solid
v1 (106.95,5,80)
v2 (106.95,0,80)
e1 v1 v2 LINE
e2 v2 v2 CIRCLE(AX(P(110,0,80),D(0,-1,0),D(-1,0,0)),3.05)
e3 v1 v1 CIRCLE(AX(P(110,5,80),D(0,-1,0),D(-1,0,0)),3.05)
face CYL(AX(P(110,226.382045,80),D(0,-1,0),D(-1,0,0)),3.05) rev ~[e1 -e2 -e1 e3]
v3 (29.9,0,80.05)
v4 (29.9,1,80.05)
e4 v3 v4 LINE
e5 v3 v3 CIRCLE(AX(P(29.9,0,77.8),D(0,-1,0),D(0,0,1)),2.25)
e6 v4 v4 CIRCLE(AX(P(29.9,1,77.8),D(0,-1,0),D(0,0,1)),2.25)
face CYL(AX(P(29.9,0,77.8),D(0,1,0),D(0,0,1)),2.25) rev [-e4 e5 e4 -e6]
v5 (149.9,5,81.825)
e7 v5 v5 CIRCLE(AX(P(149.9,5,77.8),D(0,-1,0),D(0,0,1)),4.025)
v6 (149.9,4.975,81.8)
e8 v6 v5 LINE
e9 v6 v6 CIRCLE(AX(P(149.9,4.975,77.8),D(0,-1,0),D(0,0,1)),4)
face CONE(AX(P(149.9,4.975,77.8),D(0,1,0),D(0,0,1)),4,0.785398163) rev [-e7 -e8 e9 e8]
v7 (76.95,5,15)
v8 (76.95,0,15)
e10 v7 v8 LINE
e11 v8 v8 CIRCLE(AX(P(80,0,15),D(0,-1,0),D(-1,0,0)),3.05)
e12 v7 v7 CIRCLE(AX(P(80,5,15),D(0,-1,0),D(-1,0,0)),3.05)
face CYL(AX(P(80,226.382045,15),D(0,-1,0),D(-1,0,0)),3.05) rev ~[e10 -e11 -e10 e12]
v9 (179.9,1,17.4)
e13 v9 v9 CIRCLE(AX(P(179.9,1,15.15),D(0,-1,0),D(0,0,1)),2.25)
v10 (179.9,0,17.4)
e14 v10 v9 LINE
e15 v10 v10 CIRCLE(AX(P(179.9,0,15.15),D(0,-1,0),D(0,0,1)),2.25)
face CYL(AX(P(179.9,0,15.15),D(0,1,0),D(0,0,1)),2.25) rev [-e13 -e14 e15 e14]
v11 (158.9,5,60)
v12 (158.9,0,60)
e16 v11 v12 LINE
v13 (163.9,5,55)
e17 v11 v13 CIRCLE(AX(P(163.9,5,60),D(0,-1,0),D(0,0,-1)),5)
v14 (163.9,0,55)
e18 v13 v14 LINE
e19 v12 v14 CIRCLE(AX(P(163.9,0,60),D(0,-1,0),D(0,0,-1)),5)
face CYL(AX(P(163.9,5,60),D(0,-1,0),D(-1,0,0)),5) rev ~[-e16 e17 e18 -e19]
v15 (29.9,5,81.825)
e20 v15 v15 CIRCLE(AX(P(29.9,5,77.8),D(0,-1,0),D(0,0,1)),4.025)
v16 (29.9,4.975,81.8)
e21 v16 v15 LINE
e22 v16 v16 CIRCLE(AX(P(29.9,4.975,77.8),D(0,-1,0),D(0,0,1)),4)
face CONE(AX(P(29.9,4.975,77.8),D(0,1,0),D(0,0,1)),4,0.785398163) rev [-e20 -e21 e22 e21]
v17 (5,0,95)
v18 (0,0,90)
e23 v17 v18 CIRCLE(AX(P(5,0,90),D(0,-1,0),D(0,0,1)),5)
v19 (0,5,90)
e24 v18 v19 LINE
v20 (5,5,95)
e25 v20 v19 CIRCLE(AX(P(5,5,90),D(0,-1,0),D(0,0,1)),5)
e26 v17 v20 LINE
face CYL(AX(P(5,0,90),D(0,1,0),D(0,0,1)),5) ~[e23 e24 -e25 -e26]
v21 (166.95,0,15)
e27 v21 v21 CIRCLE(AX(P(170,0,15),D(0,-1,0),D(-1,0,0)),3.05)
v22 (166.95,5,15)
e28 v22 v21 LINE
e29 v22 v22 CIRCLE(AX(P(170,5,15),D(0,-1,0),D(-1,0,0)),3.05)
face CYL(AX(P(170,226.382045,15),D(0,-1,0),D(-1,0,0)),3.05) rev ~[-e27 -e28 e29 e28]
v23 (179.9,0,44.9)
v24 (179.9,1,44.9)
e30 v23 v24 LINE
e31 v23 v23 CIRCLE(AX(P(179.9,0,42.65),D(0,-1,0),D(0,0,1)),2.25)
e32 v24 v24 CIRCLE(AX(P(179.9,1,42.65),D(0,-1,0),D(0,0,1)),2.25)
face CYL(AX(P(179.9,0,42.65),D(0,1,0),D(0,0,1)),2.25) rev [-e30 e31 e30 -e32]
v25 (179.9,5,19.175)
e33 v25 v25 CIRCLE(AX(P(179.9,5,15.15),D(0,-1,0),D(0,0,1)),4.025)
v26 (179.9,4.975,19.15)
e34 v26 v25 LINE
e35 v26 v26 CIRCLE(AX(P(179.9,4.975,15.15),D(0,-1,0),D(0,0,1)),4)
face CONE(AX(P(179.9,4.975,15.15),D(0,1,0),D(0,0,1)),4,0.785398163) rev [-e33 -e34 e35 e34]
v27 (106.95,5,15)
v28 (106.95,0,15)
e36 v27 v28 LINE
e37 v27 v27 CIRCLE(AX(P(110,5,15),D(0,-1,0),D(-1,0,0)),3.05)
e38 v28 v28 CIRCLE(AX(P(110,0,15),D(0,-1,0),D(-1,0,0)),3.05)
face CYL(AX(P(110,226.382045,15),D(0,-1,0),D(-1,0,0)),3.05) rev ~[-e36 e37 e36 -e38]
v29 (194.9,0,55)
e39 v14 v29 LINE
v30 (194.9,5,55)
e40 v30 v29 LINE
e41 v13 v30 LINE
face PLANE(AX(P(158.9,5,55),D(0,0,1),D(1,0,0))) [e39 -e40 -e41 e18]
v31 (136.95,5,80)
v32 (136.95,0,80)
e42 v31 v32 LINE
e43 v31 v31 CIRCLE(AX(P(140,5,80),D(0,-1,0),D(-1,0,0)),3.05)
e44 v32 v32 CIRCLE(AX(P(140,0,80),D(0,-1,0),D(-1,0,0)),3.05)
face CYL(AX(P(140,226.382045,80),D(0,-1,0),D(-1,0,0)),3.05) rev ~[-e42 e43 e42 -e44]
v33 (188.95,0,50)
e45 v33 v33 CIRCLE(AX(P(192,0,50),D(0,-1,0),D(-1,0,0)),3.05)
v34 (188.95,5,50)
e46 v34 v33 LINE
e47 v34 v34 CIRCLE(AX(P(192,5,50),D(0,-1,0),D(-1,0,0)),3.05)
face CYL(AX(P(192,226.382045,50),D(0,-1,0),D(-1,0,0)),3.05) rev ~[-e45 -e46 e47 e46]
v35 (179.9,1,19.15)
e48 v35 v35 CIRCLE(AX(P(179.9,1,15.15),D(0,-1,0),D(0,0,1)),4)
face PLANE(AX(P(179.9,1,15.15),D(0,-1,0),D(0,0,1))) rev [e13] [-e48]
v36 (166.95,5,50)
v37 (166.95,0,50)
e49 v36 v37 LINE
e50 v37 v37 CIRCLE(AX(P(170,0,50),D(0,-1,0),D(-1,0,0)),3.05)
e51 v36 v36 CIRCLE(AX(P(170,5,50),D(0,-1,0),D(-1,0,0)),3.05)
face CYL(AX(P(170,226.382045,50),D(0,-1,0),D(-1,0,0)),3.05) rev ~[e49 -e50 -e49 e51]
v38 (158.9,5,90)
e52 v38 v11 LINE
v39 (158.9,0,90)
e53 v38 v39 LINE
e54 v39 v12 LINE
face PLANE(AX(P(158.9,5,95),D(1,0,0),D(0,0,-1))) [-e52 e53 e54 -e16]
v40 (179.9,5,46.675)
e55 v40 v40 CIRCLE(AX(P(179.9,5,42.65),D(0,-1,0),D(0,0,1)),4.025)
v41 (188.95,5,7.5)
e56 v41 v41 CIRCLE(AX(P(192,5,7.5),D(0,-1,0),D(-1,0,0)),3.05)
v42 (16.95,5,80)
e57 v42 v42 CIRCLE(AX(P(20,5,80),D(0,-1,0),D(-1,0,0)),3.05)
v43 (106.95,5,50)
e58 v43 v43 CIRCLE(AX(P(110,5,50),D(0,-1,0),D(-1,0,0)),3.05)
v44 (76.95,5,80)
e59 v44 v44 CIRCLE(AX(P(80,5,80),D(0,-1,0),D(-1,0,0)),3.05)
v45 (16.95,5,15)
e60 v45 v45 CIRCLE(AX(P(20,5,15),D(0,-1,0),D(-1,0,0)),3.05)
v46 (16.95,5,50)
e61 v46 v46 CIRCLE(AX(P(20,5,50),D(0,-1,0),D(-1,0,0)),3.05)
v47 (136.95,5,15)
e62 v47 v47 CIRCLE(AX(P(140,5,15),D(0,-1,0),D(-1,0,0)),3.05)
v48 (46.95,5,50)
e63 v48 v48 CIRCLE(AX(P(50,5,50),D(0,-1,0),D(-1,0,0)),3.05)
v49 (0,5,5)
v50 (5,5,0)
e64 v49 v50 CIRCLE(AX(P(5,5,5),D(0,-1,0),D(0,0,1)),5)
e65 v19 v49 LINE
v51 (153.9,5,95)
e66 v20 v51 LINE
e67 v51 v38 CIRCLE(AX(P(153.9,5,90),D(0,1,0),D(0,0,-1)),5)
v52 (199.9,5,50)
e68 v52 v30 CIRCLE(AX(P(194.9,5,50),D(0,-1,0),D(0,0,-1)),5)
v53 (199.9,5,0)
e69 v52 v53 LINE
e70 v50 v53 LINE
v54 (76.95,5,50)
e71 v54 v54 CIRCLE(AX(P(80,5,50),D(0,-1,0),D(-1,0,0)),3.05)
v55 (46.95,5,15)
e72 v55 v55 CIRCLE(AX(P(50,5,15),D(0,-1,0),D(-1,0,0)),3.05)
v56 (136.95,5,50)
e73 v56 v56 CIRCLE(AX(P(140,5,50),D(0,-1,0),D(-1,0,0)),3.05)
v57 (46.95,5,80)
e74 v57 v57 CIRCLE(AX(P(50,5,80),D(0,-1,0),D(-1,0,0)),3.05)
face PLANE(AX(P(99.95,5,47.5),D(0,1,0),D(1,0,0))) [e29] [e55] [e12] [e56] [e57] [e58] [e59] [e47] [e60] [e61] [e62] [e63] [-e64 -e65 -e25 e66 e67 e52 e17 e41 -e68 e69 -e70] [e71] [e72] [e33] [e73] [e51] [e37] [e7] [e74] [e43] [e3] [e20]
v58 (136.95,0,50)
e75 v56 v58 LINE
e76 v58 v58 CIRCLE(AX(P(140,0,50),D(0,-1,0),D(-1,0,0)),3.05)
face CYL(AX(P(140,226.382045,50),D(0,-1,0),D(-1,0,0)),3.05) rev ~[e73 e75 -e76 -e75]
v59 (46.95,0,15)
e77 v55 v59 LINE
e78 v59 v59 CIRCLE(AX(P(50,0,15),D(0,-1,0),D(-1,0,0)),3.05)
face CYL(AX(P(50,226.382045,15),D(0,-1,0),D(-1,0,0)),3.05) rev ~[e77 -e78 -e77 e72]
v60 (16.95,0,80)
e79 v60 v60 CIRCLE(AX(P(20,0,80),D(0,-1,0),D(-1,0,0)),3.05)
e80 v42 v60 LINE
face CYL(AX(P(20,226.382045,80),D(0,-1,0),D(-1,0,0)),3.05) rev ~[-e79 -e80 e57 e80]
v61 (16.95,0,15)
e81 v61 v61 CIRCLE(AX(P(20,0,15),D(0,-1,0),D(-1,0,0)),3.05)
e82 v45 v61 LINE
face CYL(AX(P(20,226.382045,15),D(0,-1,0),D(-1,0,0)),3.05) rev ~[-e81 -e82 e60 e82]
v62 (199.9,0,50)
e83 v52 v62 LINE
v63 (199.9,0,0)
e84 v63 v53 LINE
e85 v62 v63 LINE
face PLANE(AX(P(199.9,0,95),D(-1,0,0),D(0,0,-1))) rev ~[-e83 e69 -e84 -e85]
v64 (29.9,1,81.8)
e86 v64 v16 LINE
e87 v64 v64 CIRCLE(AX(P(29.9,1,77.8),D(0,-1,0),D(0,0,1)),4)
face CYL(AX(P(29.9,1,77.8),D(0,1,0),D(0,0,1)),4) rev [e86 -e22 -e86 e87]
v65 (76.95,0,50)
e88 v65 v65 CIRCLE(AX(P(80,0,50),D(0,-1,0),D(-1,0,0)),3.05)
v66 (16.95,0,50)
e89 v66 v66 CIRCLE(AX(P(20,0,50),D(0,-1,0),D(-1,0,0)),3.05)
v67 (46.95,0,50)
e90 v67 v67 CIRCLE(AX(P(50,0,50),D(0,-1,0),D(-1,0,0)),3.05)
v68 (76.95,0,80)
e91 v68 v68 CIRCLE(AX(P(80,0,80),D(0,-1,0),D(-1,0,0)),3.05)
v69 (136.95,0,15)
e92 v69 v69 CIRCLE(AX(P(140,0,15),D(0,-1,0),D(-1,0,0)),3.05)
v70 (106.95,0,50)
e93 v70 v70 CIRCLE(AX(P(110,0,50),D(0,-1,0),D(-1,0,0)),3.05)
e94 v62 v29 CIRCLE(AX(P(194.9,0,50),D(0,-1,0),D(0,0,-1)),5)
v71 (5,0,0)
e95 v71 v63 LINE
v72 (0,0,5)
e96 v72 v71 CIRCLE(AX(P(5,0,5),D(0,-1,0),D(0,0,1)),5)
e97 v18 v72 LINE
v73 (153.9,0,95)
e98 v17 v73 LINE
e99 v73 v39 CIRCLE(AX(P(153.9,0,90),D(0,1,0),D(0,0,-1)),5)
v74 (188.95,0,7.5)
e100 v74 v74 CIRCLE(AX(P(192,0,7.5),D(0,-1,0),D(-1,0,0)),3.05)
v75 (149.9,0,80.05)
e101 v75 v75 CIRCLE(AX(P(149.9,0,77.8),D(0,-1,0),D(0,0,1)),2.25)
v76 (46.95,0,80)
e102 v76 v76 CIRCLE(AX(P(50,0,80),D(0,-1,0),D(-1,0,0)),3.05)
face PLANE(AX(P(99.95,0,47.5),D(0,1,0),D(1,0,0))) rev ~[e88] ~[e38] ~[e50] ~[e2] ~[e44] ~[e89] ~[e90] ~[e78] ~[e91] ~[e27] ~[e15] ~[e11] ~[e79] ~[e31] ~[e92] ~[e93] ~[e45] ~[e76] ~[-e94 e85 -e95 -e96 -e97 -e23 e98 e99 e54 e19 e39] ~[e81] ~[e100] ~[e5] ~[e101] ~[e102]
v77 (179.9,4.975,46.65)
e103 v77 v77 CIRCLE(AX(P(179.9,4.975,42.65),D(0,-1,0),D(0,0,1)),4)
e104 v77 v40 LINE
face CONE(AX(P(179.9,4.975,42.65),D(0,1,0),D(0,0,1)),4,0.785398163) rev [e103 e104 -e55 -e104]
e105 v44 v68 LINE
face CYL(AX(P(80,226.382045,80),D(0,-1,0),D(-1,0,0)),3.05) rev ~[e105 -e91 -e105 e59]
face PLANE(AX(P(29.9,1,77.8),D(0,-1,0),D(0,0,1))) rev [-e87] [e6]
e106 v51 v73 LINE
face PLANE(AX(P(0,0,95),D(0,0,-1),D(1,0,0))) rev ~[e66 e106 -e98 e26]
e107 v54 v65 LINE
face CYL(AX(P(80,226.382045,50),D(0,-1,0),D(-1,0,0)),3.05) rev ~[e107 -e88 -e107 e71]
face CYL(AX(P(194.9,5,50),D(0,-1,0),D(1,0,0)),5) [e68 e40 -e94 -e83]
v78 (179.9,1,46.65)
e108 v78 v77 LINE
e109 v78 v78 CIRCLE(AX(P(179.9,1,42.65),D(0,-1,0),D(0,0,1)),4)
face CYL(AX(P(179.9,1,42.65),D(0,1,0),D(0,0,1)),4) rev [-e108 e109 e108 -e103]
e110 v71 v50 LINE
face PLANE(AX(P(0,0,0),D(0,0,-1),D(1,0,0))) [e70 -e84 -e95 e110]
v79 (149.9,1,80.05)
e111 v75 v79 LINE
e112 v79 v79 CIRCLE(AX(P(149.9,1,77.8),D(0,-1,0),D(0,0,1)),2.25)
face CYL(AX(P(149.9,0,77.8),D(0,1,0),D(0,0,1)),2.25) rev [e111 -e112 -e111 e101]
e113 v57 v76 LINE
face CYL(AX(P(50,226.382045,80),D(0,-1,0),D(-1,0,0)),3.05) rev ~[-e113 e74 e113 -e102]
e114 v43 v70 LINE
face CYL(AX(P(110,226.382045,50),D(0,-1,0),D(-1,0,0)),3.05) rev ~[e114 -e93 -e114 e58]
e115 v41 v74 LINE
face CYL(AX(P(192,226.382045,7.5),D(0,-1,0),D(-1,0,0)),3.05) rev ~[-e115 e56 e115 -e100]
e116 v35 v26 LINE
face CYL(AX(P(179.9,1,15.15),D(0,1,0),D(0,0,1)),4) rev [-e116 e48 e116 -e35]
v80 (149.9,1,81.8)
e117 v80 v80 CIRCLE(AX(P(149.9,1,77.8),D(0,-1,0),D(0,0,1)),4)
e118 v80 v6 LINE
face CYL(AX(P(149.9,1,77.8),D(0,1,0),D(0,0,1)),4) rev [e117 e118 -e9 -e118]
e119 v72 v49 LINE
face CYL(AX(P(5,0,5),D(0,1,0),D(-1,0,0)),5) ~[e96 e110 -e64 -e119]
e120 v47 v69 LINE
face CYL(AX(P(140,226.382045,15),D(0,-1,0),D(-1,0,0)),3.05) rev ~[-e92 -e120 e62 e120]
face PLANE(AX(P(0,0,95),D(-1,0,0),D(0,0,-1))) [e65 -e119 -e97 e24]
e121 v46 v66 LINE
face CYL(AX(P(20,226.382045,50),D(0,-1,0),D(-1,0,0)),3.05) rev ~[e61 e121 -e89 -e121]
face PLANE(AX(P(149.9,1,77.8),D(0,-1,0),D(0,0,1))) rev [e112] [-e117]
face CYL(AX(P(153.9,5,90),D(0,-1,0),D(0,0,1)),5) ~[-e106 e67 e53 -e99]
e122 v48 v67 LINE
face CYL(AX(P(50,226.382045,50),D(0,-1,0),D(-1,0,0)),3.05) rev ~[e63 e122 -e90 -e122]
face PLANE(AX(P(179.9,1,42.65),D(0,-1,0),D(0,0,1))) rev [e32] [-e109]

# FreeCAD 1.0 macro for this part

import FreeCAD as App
import Part
import Sketcher
Q = App.Units.Quantity


def edges_at(feature, points):
    """Names of the edges that pass closest to the given points."""
    edges = feature.Shape.Edges
    near = lambda p: min(range(len(edges)), key=lambda i: edges[i].distToShape(Part.Vertex(*p))[0])
    return sorted({f"Edge{near(p) + 1}" for p in points})

doc = App.newDocument("Part")
body = doc.addObject("PartDesign::Body", "Body")

sketch1 = body.newObject("Sketcher::SketchObject", "Sketch")
sketch1.AttachmentSupport = (doc.getObject("XZ_Plane"), [""])
sketch1.MapMode = "FlatFace"
sketch1.addGeometry([
    Part.LineSegment(App.Vector(0, 0, 0), App.Vector(0, 95, 0)),
    Part.LineSegment(App.Vector(0, 95, 0), App.Vector(199.9, 95, 0)),
    Part.LineSegment(App.Vector(199.9, 95, 0), App.Vector(199.9, 0, 0)),
    Part.LineSegment(App.Vector(199.9, 0, 0), App.Vector(0, 0, 0)),
], False)
sketch1.addConstraint([
    Sketcher.Constraint("Coincident", 0, 2, 1, 1),
    Sketcher.Constraint("Coincident", 1, 2, 2, 1),
    Sketcher.Constraint("Coincident", 2, 2, 3, 1),
    Sketcher.Constraint("Coincident", 3, 2, 0, 1),
    Sketcher.Constraint("Vertical", 0),
    Sketcher.Constraint("Horizontal", 1),
    Sketcher.Constraint("Vertical", 2),
    Sketcher.Constraint("Horizontal", 3),
    Sketcher.Constraint("Coincident", 3, 2, -1, 1),
    Sketcher.Constraint("DistanceY", 0, 1, 0, 2, 95.0),
    Sketcher.Constraint("DistanceX", 1, 1, 1, 2, 199.9),
])
pad1 = body.newObject("PartDesign::Pad", "Pad")
pad1.Profile = sketch1
pad1.Length = 5
pad1.Reversed = True

sketch2 = body.newObject("Sketcher::SketchObject", "Sketch001")
sketch2.AttachmentSupport = (doc.getObject("YZ_Plane"), [""])
sketch2.MapMode = "FlatFace"
sketch2.AttachmentOffset = App.Placement(App.Vector(0, 0, 179.9), App.Rotation())
sketch2.addGeometry([
    Part.LineSegment(App.Vector(0, 15.15, 0), App.Vector(5, 15.15, 0)),
    Part.LineSegment(App.Vector(5, 15.15, 0), App.Vector(5, 19.175, 0)),
    Part.LineSegment(App.Vector(5, 19.175, 0), App.Vector(4.975, 19.15, 0)),
    Part.LineSegment(App.Vector(4.975, 19.15, 0), App.Vector(1, 19.15, 0)),
    Part.LineSegment(App.Vector(1, 19.15, 0), App.Vector(1, 17.4, 0)),
    Part.LineSegment(App.Vector(1, 17.4, 0), App.Vector(0, 17.4, 0)),
    Part.LineSegment(App.Vector(0, 17.4, 0), App.Vector(0, 15.15, 0)),
], False)
sketch2.addGeometry(Part.LineSegment(App.Vector(5, 15.15, 0), App.Vector(0, 15.15, 0)), True)
sketch2.addConstraint([
    Sketcher.Constraint("Coincident", 0, 2, 1, 1),
    Sketcher.Constraint("Coincident", 1, 2, 2, 1),
    Sketcher.Constraint("Coincident", 2, 2, 3, 1),
    Sketcher.Constraint("Coincident", 3, 2, 4, 1),
    Sketcher.Constraint("Coincident", 4, 2, 5, 1),
    Sketcher.Constraint("Coincident", 5, 2, 6, 1),
    Sketcher.Constraint("Coincident", 6, 2, 0, 1),
    Sketcher.Constraint("Horizontal", 0),
    Sketcher.Constraint("Vertical", 1),
    Sketcher.Constraint("Horizontal", 3),
    Sketcher.Constraint("Vertical", 4),
    Sketcher.Constraint("Horizontal", 5),
    Sketcher.Constraint("Vertical", 6),
    Sketcher.Constraint("Horizontal", 7),
    Sketcher.Constraint("Coincident", 7, 1, 0, 2),
    Sketcher.Constraint("PointOnObject", 5, 2, -2),
    Sketcher.Constraint("PointOnObject", 7, 2, -2),
    Sketcher.Constraint("DistanceX", 0, 1, 0, 2, 5.0),
    Sketcher.Constraint("DistanceX", 5, 2, 5, 1, 1.0),
    Sketcher.Constraint("Angle", 2, Q("-135 deg")),
    Sketcher.Constraint("DistanceY", 0, 2, 2, 2, 4.0),
    Sketcher.Constraint("DistanceY", 4, 2, 4, 1, 1.75),
    Sketcher.Constraint("DistanceY", -1, 1, 4, 2, 17.4),
    Sketcher.Constraint("DistanceX", 3, 2, 3, 1, 3.975),
])
groove = body.newObject("PartDesign::Groove", "Groove")
groove.Profile = sketch2
groove.ReferenceAxis = (sketch2, ["Axis0"])
groove.Angle = 360
doc.recompute()

datumline = body.newObject("PartDesign::Line", "DatumLine")
datumline.Placement = App.Placement(App.Vector(0, 0, 0), App.Rotation(App.Vector(0, 0, 1), App.Vector(-0.431888443, 0, 0.901927033)))
linearpattern = body.newObject("PartDesign::LinearPattern", "LinearPattern")
linearpattern.Originals = [groove]
linearpattern.Direction = (datumline, [""])
linearpattern.Mode = "offset"
linearpattern.Offset = 69.462382
linearpattern.Occurrences = 2
body.Tip = linearpattern
doc.recompute()

datumline2 = body.newObject("PartDesign::Line", "DatumLine001")
datumline2.Placement = App.Placement(App.Vector(0, 0, 0), App.Rotation(App.Vector(0, 0, 1), App.Vector(-0.922748985, 0, 0.385401493)))
linearpattern2 = body.newObject("PartDesign::LinearPattern", "LinearPattern001")
linearpattern2.Originals = [groove]
linearpattern2.Direction = (datumline2, [""])
linearpattern2.Mode = "offset"
linearpattern2.Offset = 162.557751
linearpattern2.Occurrences = 2
body.Tip = linearpattern2
doc.recompute()

linearpattern3 = body.newObject("PartDesign::LinearPattern", "LinearPattern002")
linearpattern3.Originals = [groove]
linearpattern3.Direction = (doc.getObject("Z_Axis"), [""])
linearpattern3.Mode = "offset"
linearpattern3.Offset = 27.5
linearpattern3.Occurrences = 2
body.Tip = linearpattern3

sketch3 = body.newObject("Sketcher::SketchObject", "Sketch002")
sketch3.AttachmentSupport = (doc.getObject("XZ_Plane"), [""])
sketch3.MapMode = "FlatFace"
sketch3.AttachmentOffset = App.Placement(App.Vector(0, 0, -5), App.Rotation())
sketch3.addGeometry([
    Part.Circle(App.Vector(170, 15, 0), App.Vector(0, 0, 1), 3.05),
    Part.Circle(App.Vector(20, 15, 0), App.Vector(0, 0, 1), 3.05),
    Part.Circle(App.Vector(50, 15, 0), App.Vector(0, 0, 1), 3.05),
    Part.Circle(App.Vector(80, 15, 0), App.Vector(0, 0, 1), 3.05),
    Part.Circle(App.Vector(110, 15, 0), App.Vector(0, 0, 1), 3.05),
    Part.Circle(App.Vector(140, 15, 0), App.Vector(0, 0, 1), 3.05),
], False)
sketch3.addConstraint([
    Sketcher.Constraint("Equal", 0, 1),
    Sketcher.Constraint("Equal", 1, 2),
    Sketcher.Constraint("Equal", 2, 3),
    Sketcher.Constraint("Equal", 3, 4),
    Sketcher.Constraint("Equal", 4, 5),
    Sketcher.Constraint("Horizontal", 0, 3, 1, 3),
    Sketcher.Constraint("Horizontal", 1, 3, 2, 3),
    Sketcher.Constraint("Horizontal", 2, 3, 3, 3),
    Sketcher.Constraint("Horizontal", 3, 3, 4, 3),
    Sketcher.Constraint("Horizontal", 4, 3, 5, 3),
    Sketcher.Constraint("Diameter", 0, 6.1),
    Sketcher.Constraint("DistanceX", -1, 1, 0, 3, 170.0),
    Sketcher.Constraint("DistanceY", -1, 1, 0, 3, 15.0),
    Sketcher.Constraint("DistanceX", -1, 1, 1, 3, 20.0),
    Sketcher.Constraint("DistanceX", -1, 1, 2, 3, 50.0),
    Sketcher.Constraint("DistanceX", -1, 1, 3, 3, 80.0),
    Sketcher.Constraint("DistanceX", -1, 1, 4, 3, 110.0),
    Sketcher.Constraint("DistanceX", -1, 1, 5, 3, 140.0),
])
doc.recompute()
hole = body.newObject("PartDesign::Hole", "Hole")
hole.Profile = sketch3
hole.ThreadType = "None"
hole.Diameter = 6.1
hole.DepthType = "ThroughAll"
hole.Reversed = True
doc.recompute()

linearpattern4 = body.newObject("PartDesign::LinearPattern", "LinearPattern003")
linearpattern4.Originals = [hole]
linearpattern4.Direction = (doc.getObject("Z_Axis"), [""])
linearpattern4.Mode = "offset"
linearpattern4.Offset = 35
linearpattern4.Occurrences = 2
body.Tip = linearpattern4

sketch4 = body.newObject("Sketcher::SketchObject", "Sketch003")
sketch4.AttachmentSupport = (doc.getObject("XZ_Plane"), [""])
sketch4.MapMode = "FlatFace"
sketch4.AttachmentOffset = App.Placement(App.Vector(0, 0, -5), App.Rotation())
sketch4.addGeometry([
    Part.LineSegment(App.Vector(158.9, 55, 0), App.Vector(158.9, 95, 0)),
    Part.LineSegment(App.Vector(158.9, 95, 0), App.Vector(199.9, 95, 0)),
    Part.LineSegment(App.Vector(199.9, 95, 0), App.Vector(199.9, 55, 0)),
    Part.LineSegment(App.Vector(199.9, 55, 0), App.Vector(158.9, 55, 0)),
], False)
sketch4.addConstraint([
    Sketcher.Constraint("Coincident", 0, 2, 1, 1),
    Sketcher.Constraint("Coincident", 1, 2, 2, 1),
    Sketcher.Constraint("Coincident", 2, 2, 3, 1),
    Sketcher.Constraint("Coincident", 3, 2, 0, 1),
    Sketcher.Constraint("Vertical", 0),
    Sketcher.Constraint("Horizontal", 1),
    Sketcher.Constraint("Vertical", 2),
    Sketcher.Constraint("Horizontal", 3),
    Sketcher.Constraint("DistanceX", 1, 1, 1, 2, 41.0),
    Sketcher.Constraint("DistanceY", 0, 1, 0, 2, 40.0),
    Sketcher.Constraint("DistanceY", -1, 1, 0, 2, 95.0),
    Sketcher.Constraint("DistanceX", -1, 1, 0, 2, 158.9),
])
pocket1 = body.newObject("PartDesign::Pocket", "Pocket")
pocket1.Profile = sketch4
pocket1.Type = "ThroughAll"
pocket1.Reversed = True
doc.recompute()

linearpattern5 = body.newObject("PartDesign::LinearPattern", "LinearPattern004")
linearpattern5.Originals = [hole]
linearpattern5.Direction = (doc.getObject("Z_Axis"), [""])
linearpattern5.Mode = "offset"
linearpattern5.Offset = 65
linearpattern5.Occurrences = 2
body.Tip = linearpattern5
doc.recompute()

fillet = body.newObject("PartDesign::Fillet", "Fillet")
fillet.Base = (linearpattern5, edges_at(linearpattern5, [(199.9, 2.5, 55), (158.9, 2.5, 95), (158.9, 2.5, 55)]))
fillet.Radius = 5

sketch5 = body.newObject("Sketcher::SketchObject", "Sketch004")
sketch5.AttachmentSupport = (doc.getObject("XZ_Plane"), [""])
sketch5.MapMode = "FlatFace"
sketch5.AttachmentOffset = App.Placement(App.Vector(0, 0, -5), App.Rotation())
sketch5.addGeometry([
    Part.Circle(App.Vector(192, 50, 0), App.Vector(0, 0, 1), 3.05),
    Part.Circle(App.Vector(192, 7.5, 0), App.Vector(0, 0, 1), 3.05),
], False)
sketch5.addConstraint([
    Sketcher.Constraint("Equal", 0, 1),
    Sketcher.Constraint("Vertical", 0, 3, 1, 3),
    Sketcher.Constraint("Diameter", 0, 6.1),
    Sketcher.Constraint("DistanceX", -1, 1, 0, 3, 192.0),
    Sketcher.Constraint("DistanceY", -1, 1, 0, 3, 50.0),
    Sketcher.Constraint("DistanceY", -1, 1, 1, 3, 7.5),
])
doc.recompute()
hole2 = body.newObject("PartDesign::Hole", "Hole001")
hole2.Profile = sketch5
hole2.ThreadType = "None"
hole2.Diameter = 6.1
hole2.DepthType = "ThroughAll"
hole2.Reversed = True
doc.recompute()

fillet2 = body.newObject("PartDesign::Fillet", "Fillet001")
fillet2.Base = (hole2, edges_at(hole2, [(0, 2.5, 0), (0, 2.5, 95)]))
fillet2.Radius = 5

doc.recompute()
